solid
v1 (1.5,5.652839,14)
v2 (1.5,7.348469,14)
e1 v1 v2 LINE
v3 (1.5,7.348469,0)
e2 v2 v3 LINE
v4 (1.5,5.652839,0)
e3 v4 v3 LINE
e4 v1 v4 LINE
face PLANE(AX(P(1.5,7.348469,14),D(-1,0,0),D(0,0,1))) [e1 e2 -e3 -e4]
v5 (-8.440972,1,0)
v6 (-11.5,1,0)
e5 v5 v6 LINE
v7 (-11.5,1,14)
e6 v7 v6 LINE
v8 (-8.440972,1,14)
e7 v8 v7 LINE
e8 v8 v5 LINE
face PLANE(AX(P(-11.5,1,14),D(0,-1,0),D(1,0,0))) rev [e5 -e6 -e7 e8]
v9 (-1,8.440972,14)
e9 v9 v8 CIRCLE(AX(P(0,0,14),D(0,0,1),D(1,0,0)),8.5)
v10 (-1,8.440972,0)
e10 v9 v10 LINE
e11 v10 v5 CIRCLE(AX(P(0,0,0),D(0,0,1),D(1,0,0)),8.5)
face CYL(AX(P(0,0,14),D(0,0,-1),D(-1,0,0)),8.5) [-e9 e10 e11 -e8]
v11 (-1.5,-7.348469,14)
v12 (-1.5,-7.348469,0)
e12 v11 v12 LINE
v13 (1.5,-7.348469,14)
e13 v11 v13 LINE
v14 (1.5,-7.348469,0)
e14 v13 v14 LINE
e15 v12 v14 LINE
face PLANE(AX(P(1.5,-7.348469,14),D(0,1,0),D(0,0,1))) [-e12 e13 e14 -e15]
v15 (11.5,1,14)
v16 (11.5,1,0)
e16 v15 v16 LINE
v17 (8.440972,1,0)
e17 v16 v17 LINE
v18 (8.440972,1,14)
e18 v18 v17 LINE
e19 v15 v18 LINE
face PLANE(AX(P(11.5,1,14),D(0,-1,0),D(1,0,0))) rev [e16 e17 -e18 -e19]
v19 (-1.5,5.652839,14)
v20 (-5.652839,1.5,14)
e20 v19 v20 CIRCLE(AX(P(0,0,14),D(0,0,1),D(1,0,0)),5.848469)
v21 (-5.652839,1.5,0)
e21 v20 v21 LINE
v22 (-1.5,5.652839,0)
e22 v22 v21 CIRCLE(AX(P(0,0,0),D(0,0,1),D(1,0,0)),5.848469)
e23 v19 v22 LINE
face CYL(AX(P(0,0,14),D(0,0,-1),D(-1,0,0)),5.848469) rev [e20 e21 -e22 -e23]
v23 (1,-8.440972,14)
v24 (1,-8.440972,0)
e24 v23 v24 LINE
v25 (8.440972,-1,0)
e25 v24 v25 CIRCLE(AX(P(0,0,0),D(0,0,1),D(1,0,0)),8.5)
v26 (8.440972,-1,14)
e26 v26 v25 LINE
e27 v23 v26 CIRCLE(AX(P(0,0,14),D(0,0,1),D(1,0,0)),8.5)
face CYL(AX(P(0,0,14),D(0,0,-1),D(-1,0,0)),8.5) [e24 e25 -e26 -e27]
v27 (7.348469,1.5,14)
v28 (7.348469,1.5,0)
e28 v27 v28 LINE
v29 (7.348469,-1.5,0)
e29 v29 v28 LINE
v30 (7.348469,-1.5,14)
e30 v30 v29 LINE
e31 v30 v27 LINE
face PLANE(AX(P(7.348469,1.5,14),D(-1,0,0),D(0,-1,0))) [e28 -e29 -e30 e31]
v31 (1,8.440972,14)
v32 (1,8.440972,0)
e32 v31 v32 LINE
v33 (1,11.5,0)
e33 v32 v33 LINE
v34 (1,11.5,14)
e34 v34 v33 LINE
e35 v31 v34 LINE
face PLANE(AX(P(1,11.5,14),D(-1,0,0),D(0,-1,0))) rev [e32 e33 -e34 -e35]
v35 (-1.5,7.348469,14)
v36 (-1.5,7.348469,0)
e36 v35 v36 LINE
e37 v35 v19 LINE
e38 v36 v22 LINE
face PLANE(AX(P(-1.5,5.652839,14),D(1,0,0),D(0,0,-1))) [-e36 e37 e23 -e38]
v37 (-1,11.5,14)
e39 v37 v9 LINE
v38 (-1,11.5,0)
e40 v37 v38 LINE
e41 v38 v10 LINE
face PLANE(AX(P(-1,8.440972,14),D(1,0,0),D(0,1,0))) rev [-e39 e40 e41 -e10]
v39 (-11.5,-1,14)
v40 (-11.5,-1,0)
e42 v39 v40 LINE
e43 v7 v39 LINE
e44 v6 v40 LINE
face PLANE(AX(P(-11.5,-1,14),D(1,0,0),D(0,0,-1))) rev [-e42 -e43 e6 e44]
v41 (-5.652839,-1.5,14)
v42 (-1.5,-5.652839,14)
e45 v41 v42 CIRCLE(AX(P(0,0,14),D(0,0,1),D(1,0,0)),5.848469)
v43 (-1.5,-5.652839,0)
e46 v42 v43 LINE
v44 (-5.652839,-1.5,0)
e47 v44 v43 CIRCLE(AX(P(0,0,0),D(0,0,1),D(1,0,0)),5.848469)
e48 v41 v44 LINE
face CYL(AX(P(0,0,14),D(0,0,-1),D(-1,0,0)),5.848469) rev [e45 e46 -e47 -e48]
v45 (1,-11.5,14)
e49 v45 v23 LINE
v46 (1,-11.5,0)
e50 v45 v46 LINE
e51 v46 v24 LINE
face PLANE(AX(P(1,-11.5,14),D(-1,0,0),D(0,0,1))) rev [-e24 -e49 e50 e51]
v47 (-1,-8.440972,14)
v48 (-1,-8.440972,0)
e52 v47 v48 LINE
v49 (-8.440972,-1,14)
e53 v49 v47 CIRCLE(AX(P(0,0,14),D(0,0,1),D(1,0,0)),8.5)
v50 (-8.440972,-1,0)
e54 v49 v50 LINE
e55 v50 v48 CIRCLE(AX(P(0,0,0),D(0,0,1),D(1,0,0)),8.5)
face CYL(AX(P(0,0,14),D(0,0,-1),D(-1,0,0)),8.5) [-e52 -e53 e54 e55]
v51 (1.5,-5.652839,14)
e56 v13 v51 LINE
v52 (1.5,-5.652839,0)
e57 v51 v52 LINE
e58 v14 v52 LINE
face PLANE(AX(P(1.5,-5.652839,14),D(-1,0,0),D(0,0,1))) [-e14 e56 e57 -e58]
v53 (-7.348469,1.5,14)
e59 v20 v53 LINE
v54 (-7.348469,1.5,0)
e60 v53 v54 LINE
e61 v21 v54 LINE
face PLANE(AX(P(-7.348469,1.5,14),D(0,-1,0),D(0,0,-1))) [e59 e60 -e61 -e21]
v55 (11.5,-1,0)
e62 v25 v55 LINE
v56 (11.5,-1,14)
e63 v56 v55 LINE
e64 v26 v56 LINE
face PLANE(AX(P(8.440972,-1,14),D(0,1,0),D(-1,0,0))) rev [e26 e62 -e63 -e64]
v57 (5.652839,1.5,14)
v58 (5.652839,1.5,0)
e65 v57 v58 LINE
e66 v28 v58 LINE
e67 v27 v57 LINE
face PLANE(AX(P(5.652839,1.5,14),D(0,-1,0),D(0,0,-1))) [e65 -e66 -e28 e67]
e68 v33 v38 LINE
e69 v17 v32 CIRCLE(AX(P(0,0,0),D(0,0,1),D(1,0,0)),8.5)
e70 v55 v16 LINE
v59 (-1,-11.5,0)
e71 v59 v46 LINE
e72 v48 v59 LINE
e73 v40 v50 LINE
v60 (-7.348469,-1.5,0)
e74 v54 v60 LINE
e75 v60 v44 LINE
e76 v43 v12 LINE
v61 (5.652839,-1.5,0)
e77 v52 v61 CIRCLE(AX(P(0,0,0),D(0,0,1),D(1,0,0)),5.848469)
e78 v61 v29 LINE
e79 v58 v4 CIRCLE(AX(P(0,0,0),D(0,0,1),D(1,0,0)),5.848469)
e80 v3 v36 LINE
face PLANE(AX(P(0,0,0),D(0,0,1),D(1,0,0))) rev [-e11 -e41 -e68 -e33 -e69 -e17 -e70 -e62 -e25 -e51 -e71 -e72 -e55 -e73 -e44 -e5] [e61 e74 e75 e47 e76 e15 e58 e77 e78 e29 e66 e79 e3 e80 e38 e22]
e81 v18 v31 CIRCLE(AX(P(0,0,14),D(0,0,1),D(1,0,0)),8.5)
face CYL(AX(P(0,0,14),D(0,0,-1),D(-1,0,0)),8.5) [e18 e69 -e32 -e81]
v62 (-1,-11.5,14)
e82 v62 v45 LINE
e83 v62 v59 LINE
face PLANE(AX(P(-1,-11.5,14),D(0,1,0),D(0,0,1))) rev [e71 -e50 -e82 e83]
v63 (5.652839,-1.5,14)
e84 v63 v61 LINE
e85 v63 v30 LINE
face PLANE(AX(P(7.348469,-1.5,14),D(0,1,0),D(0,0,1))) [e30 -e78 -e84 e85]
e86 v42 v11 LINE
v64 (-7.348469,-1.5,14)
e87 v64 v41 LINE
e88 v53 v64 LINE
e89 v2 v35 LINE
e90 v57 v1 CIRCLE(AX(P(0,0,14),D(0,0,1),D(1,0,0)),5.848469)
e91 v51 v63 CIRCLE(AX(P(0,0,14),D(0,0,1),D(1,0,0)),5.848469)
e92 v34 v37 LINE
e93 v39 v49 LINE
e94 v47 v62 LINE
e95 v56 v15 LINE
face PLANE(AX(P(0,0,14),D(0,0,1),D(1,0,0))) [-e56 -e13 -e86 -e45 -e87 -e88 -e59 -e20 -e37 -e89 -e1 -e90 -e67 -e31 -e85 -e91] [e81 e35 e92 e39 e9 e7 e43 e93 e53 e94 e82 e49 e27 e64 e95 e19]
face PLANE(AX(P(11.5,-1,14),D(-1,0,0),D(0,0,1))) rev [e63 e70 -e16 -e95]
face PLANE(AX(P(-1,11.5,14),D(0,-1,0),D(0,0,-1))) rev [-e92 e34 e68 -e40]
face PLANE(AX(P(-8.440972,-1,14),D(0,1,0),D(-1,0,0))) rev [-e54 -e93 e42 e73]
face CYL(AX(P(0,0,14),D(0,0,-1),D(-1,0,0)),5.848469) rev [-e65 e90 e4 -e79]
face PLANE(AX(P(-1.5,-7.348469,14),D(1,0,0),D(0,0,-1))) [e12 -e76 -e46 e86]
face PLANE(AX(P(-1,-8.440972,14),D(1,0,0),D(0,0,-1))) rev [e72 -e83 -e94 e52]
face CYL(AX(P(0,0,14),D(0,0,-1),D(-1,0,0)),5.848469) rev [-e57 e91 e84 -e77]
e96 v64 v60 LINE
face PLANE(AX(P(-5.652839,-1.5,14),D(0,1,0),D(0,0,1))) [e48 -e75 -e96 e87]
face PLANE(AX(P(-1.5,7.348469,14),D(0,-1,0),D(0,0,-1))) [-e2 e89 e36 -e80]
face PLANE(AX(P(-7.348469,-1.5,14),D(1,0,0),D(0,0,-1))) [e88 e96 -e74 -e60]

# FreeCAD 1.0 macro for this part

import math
import FreeCAD as App
import Part
import Sketcher
from FreeCAD import Vector
Q = App.Units.Quantity

doc = App.newDocument("Part")
body = doc.addObject("PartDesign::Body", "Body")

# Sketch on XY plane
sketch1 = body.newObject("Sketcher::SketchObject", "Sketch")
sketch1.AttachmentSupport = (doc.getObject("XY_Plane"), [""])
sketch1.MapMode = "FlatFace"
sketch1.addGeometry([
    Part.LineSegment(Vector(-1, 11.5, 0), Vector(-1, 8.4, 0)),  # 0
    Part.ArcOfCircle(Part.Circle(Vector(0, 0, 0), Vector(0, 0, 1), 8.5), math.radians(97), math.radians(173)),  # 1
    Part.LineSegment(Vector(-8.4, 1, 0), Vector(-11.5, 1, 0)),  # 2
    Part.LineSegment(Vector(-11.5, 1, 0), Vector(-11.5, -1, 0)),  # 3
    Part.LineSegment(Vector(-11.5, -1, 0), Vector(-8.4, -1, 0)),  # 4
    Part.ArcOfCircle(Part.Circle(Vector(0, 0, 0), Vector(0, 0, 1), 8.5), math.radians(-173), math.radians(-97)),  # 5
    Part.LineSegment(Vector(-1, -8.4, 0), Vector(-1, -11.5, 0)),  # 6
    Part.LineSegment(Vector(-1, -11.5, 0), Vector(1, -11.5, 0)),  # 7
    Part.LineSegment(Vector(1, -11.5, 0), Vector(1, -8.4, 0)),  # 8
    Part.ArcOfCircle(Part.Circle(Vector(0, 0, 0), Vector(0, 0, 1), 8.5), math.radians(-83), math.radians(-7)),  # 9
    Part.LineSegment(Vector(8.4, -1, 0), Vector(11.5, -1, 0)),  # 10
    Part.LineSegment(Vector(11.5, -1, 0), Vector(11.5, 1, 0)),  # 11
    Part.LineSegment(Vector(11.5, 1, 0), Vector(8.4, 1, 0)),  # 12
    Part.ArcOfCircle(Part.Circle(Vector(0, 0, 0), Vector(0, 0, 1), 8.5), math.radians(7), math.radians(83)),  # 13
    Part.LineSegment(Vector(1, 8.4, 0), Vector(1, 11.5, 0)),  # 14
    Part.LineSegment(Vector(1, 11.5, 0), Vector(-1, 11.5, 0)),  # 15
    Part.LineSegment(Vector(-1.5, 5.7, 0), Vector(-1.5, 7.3, 0)),  # 16
    Part.LineSegment(Vector(-1.5, 7.3, 0), Vector(1.5, 7.3, 0)),  # 17
    Part.LineSegment(Vector(1.5, 7.3, 0), Vector(1.5, 5.7, 0)),  # 18
    Part.ArcOfCircle(Part.Circle(Vector(0, 0, 0), Vector(0, 0, 1), 5.8), math.radians(15), math.radians(75)),  # 19
    Part.LineSegment(Vector(5.7, 1.5, 0), Vector(7.3, 1.5, 0)),  # 20
    Part.LineSegment(Vector(7.3, 1.5, 0), Vector(7.3, -1.5, 0)),  # 21
    Part.LineSegment(Vector(7.3, -1.5, 0), Vector(5.7, -1.5, 0)),  # 22
    Part.ArcOfCircle(Part.Circle(Vector(0, 0, 0), Vector(0, 0, 1), 5.8), math.radians(-75), math.radians(-15)),  # 23
    Part.LineSegment(Vector(1.5, -5.7, 0), Vector(1.5, -7.3, 0)),  # 24
    Part.LineSegment(Vector(1.5, -7.3, 0), Vector(-1.5, -7.3, 0)),  # 25
    Part.LineSegment(Vector(-1.5, -7.3, 0), Vector(-1.5, -5.7, 0)),  # 26
    Part.ArcOfCircle(Part.Circle(Vector(0, 0, 0), Vector(0, 0, 1), 5.8), math.radians(-165), math.radians(-105)),  # 27
    Part.LineSegment(Vector(-5.7, -1.5, 0), Vector(-7.3, -1.5, 0)),  # 28
    Part.LineSegment(Vector(-7.3, -1.5, 0), Vector(-7.3, 1.5, 0)),  # 29
    Part.LineSegment(Vector(-7.3, 1.5, 0), Vector(-5.7, 1.5, 0)),  # 30
    Part.ArcOfCircle(Part.Circle(Vector(0, 0, 0), Vector(0, 0, 1), 5.8), math.radians(105), math.radians(165)),  # 31
], False)
sketch1.addConstraint([
    Sketcher.Constraint("Coincident", 0, 2, 1, 1),
    Sketcher.Constraint("Coincident", 1, 2, 2, 1),
    Sketcher.Constraint("Coincident", 2, 2, 3, 1),
    Sketcher.Constraint("Coincident", 3, 2, 4, 1),
    Sketcher.Constraint("Coincident", 4, 2, 5, 1),
    Sketcher.Constraint("Coincident", 5, 2, 6, 1),
    Sketcher.Constraint("Coincident", 6, 2, 7, 1),
    Sketcher.Constraint("Coincident", 7, 2, 8, 1),
    Sketcher.Constraint("Coincident", 8, 2, 9, 1),
    Sketcher.Constraint("Coincident", 9, 2, 10, 1),
    Sketcher.Constraint("Coincident", 10, 2, 11, 1),
    Sketcher.Constraint("Coincident", 11, 2, 12, 1),
    Sketcher.Constraint("Coincident", 12, 2, 13, 1),
    Sketcher.Constraint("Coincident", 13, 2, 14, 1),
    Sketcher.Constraint("Coincident", 14, 2, 15, 1),
    Sketcher.Constraint("Coincident", 15, 2, 0, 1),
    Sketcher.Constraint("Coincident", 16, 2, 17, 1),
    Sketcher.Constraint("Coincident", 17, 2, 18, 1),
    Sketcher.Constraint("Coincident", 18, 2, 19, 2),
    Sketcher.Constraint("Coincident", 19, 1, 20, 1),
    Sketcher.Constraint("Coincident", 20, 2, 21, 1),
    Sketcher.Constraint("Coincident", 21, 2, 22, 1),
    Sketcher.Constraint("Coincident", 22, 2, 23, 2),
    Sketcher.Constraint("Coincident", 23, 1, 24, 1),
    Sketcher.Constraint("Coincident", 24, 2, 25, 1),
    Sketcher.Constraint("Coincident", 25, 2, 26, 1),
    Sketcher.Constraint("Coincident", 26, 2, 27, 2),
    Sketcher.Constraint("Coincident", 27, 1, 28, 1),
    Sketcher.Constraint("Coincident", 28, 2, 29, 1),
    Sketcher.Constraint("Coincident", 29, 2, 30, 1),
    Sketcher.Constraint("Coincident", 30, 2, 31, 2),
    Sketcher.Constraint("Coincident", 31, 1, 16, 1),
    Sketcher.Constraint("Vertical", 0),
    Sketcher.Constraint("Horizontal", 2),
    Sketcher.Constraint("Vertical", 3),
    Sketcher.Constraint("Horizontal", 4),
    Sketcher.Constraint("Vertical", 6),
    Sketcher.Constraint("Horizontal", 7),
    Sketcher.Constraint("Vertical", 8),
    Sketcher.Constraint("Horizontal", 10),
    Sketcher.Constraint("Vertical", 11),
    Sketcher.Constraint("Horizontal", 12),
    Sketcher.Constraint("Vertical", 14),
    Sketcher.Constraint("Horizontal", 15),
    Sketcher.Constraint("Vertical", 16),
    Sketcher.Constraint("Horizontal", 17),
    Sketcher.Constraint("Vertical", 18),
    Sketcher.Constraint("Horizontal", 20),
    Sketcher.Constraint("Vertical", 21),
    Sketcher.Constraint("Horizontal", 22),
    Sketcher.Constraint("Vertical", 24),
    Sketcher.Constraint("Horizontal", 25),
    Sketcher.Constraint("Vertical", 26),
    Sketcher.Constraint("Horizontal", 28),
    Sketcher.Constraint("Vertical", 29),
    Sketcher.Constraint("Horizontal", 30),
    Sketcher.Constraint("Coincident", 1, 3, -1, 1),
    Sketcher.Constraint("Coincident", 5, 3, -1, 1),
    Sketcher.Constraint("Coincident", 9, 3, -1, 1),
    Sketcher.Constraint("Coincident", 13, 3, -1, 1),
    Sketcher.Constraint("Coincident", 19, 3, -1, 1),
    Sketcher.Constraint("Coincident", 23, 3, -1, 1),
    Sketcher.Constraint("Coincident", 27, 3, -1, 1),
    Sketcher.Constraint("Coincident", 31, 3, -1, 1),
    Sketcher.Constraint("Equal", 1, 5),
    Sketcher.Constraint("Equal", 5, 9),
    Sketcher.Constraint("Equal", 9, 13),
    Sketcher.Constraint("Equal", 19, 23),
    Sketcher.Constraint("Equal", 23, 27),
    Sketcher.Constraint("Equal", 27, 31),
    Sketcher.Constraint("Symmetric", 2, 2, 10, 2, -1, 1),
    Sketcher.Constraint("Symmetric", 6, 2, 14, 2, -1, 1),
    Sketcher.Constraint("Symmetric", 16, 2, 24, 2, -1, 1),
    Sketcher.Constraint("Symmetric", 20, 2, 28, 2, -1, 1),
    Sketcher.Constraint("Horizontal", 5, 2, 8, 2),
    Sketcher.Constraint("Horizontal", 4, 2, 9, 2),
    Sketcher.Constraint("Horizontal", 2, 2, 11, 2),
    Sketcher.Constraint("Horizontal", 0, 2, 13, 2),
    Sketcher.Constraint("Horizontal", 23, 1, 26, 2),
    Sketcher.Constraint("Horizontal", 22, 2, 27, 1),
    Sketcher.Constraint("Horizontal", 20, 2, 29, 2),
    Sketcher.Constraint("Horizontal", 18, 2, 31, 1),
    Sketcher.Constraint("Equal", 12, 0),
    Sketcher.Constraint("Equal", 15, 3),
    Sketcher.Constraint("Equal", 30, 16),
    Sketcher.Constraint("Equal", 25, 21),
    Sketcher.Constraint("Radius", 1, Q("8.5 mm")),
    Sketcher.Constraint("DistanceX", 7, 1, 7, 2, Q("2 mm")),
    Sketcher.Constraint("DistanceX", 17, 1, 17, 2, Q("3 mm")),
    Sketcher.Constraint("DistanceX", 2, 2, -1, 1, Q("11.5 mm")),
    Sketcher.Constraint("Radius", 19, Q("5.848469 mm")),
    Sketcher.Constraint("DistanceX", 20, 1, 20, 2, Q("1.69563 mm")),
])
pad1 = body.newObject("PartDesign::Pad", "Pad")
pad1.Profile = sketch1
pad1.Length = 14

doc.recompute()
